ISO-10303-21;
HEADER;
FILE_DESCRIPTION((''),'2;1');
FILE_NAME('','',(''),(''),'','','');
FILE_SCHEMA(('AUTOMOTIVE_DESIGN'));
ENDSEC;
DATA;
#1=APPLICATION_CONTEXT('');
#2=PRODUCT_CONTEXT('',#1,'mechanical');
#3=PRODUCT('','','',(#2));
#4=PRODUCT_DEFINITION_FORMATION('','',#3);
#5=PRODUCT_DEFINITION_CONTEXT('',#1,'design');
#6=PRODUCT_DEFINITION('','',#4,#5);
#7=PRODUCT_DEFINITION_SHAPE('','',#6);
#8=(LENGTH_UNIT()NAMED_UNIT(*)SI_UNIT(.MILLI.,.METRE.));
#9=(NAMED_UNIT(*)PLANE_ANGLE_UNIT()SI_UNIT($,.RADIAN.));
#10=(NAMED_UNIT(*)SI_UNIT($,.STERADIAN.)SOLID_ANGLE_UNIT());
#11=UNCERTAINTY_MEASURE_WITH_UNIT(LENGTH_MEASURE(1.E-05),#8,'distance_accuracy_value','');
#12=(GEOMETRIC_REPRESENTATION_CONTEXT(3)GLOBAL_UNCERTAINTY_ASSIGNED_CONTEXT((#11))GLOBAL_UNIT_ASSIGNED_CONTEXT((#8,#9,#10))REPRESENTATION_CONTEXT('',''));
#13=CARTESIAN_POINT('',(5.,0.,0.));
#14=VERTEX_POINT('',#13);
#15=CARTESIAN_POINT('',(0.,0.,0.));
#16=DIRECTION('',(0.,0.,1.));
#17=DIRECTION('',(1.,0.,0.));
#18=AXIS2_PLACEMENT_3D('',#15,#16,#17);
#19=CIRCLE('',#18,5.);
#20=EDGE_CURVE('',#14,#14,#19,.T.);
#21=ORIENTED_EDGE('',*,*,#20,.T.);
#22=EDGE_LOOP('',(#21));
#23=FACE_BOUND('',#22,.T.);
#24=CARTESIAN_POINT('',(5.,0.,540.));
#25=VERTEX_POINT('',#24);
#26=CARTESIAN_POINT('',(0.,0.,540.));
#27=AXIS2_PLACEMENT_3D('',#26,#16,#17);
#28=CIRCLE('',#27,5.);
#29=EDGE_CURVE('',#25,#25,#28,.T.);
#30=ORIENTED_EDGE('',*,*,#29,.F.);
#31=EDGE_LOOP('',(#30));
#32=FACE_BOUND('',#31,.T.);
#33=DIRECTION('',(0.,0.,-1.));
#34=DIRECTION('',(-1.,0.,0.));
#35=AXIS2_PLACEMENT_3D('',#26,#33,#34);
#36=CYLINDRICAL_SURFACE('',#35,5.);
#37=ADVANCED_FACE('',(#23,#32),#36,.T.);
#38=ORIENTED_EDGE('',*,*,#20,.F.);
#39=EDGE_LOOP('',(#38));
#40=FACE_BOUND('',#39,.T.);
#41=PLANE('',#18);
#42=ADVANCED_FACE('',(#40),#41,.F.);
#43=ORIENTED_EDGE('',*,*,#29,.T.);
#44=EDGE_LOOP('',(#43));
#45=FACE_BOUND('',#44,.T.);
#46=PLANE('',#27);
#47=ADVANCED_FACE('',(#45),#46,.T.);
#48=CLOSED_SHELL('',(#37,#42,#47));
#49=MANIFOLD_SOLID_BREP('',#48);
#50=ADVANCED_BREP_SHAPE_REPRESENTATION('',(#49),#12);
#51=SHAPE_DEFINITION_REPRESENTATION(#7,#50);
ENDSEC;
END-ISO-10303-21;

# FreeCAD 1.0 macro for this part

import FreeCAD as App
import Part
import Sketcher

V = App.Vector
Q = App.Units.Quantity

doc = App.newDocument("Part")
params = doc.addObject("Spreadsheet::Sheet", "Params")
for row, (alias, value) in enumerate([
    ("sketch1_diameter", "10 mm"),
    ("pad1_length", "540 mm"),
], start=1):
    params.set(f"A{row}", alias)
    params.set(f"B{row}", "=" + value)
    params.setAlias(f"B{row}", alias)

body = doc.addObject("PartDesign::Body", "Body")

# Sketch on XY plane
sketch1 = body.newObject("Sketcher::SketchObject", "Sketch")
sketch1.AttachmentSupport = (doc.getObject("XY_Plane"), [""])
sketch1.MapMode = "FlatFace"
sketch1.addGeometry(Part.Circle(V(0, 0, 0), V(0, 0, 1), 5), False)
sketch1.addConstraint([
    Sketcher.Constraint("Coincident", 0, 3, -1, 1),
    Sketcher.Constraint("Diameter", 0, Q("10 mm")),
])
sketch1.setExpression("Constraints[1]", "Params.sketch1_diameter")
pad1 = body.newObject("PartDesign::Pad", "Pad")
pad1.Profile = sketch1
pad1.setExpression("Length", "Params.pad1_length")

doc.recompute()
